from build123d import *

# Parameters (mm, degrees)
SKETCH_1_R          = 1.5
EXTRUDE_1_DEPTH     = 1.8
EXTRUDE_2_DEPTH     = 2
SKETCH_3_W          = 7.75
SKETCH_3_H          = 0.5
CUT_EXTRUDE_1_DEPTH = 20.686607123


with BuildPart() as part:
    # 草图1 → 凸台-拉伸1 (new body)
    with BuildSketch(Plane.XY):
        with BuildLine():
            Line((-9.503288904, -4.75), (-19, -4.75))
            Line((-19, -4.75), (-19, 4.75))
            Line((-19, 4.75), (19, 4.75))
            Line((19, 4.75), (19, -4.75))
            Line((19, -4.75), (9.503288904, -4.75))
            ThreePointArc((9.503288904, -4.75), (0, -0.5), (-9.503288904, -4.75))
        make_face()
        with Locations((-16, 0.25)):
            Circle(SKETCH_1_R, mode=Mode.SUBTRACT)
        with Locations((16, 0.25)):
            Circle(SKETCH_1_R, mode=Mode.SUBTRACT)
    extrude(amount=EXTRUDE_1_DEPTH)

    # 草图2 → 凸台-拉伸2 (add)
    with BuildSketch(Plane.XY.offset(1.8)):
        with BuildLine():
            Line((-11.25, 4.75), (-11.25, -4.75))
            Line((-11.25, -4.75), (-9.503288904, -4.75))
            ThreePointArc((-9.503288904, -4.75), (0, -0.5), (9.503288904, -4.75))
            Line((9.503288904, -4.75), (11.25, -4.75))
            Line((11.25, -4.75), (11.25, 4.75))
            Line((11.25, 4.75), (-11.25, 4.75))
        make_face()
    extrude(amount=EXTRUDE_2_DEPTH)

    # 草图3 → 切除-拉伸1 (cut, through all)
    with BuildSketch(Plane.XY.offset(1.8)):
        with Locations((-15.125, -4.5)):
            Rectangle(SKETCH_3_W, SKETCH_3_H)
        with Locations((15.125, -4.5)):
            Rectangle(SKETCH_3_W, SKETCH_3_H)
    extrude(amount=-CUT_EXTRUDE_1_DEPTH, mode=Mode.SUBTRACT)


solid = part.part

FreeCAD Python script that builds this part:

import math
import FreeCAD as App
import Part
import Sketcher
Q = App.Units.Quantity

doc = App.newDocument("Part")
body = doc.addObject("PartDesign::Body", "Body")

sketch1 = body.newObject("Sketcher::SketchObject", "Sketch")
sketch1.AttachmentSupport = (doc.getObject("XY_Plane"), [""])
sketch1.MapMode = "FlatFace"
sketch1.addGeometry([
    Part.LineSegment(App.Vector(-19, -4.8, 0), App.Vector(-9.5, -4.8, 0)),
    Part.ArcOfCircle(Part.Circle(App.Vector(0, -13.2, 0), App.Vector(0, 0, 1), 12.7), math.radians(42), math.radians(138)),
    Part.LineSegment(App.Vector(9.5, -4.8, 0), App.Vector(19, -4.8, 0)),
    Part.LineSegment(App.Vector(19, -4.8, 0), App.Vector(19, 4.8, 0)),
    Part.LineSegment(App.Vector(19, 4.8, 0), App.Vector(-19, 4.8, 0)),
    Part.LineSegment(App.Vector(-19, 4.8, 0), App.Vector(-19, -4.8, 0)),
    Part.Circle(App.Vector(16, 0.2, 0), App.Vector(0, 0, 1), 1.5),
    Part.Circle(App.Vector(-16, 0.2, 0), App.Vector(0, 0, 1), 1.5),
], False)
sketch1.addConstraint([
    Sketcher.Constraint("Coincident", 0, 2, 1, 2),
    Sketcher.Constraint("Coincident", 1, 1, 2, 1),
    Sketcher.Constraint("Coincident", 2, 2, 3, 1),
    Sketcher.Constraint("Coincident", 3, 2, 4, 1),
    Sketcher.Constraint("Coincident", 4, 2, 5, 1),
    Sketcher.Constraint("Coincident", 5, 2, 0, 1),
    Sketcher.Constraint("Horizontal", 0),
    Sketcher.Constraint("Horizontal", 2),
    Sketcher.Constraint("Vertical", 3),
    Sketcher.Constraint("Horizontal", 4),
    Sketcher.Constraint("Vertical", 5),
    Sketcher.Constraint("Equal", 6, 7),
    Sketcher.Constraint("Symmetric", 2, 2, 4, 2, -1, 1),
    Sketcher.Constraint("Symmetric", 6, 3, 7, 3, -2),
    Sketcher.Constraint("Symmetric", 0, 2, 1, 1, -2),
    Sketcher.Constraint("Diameter", 6, Q("3 mm")),
    Sketcher.Constraint("DistanceX", 4, 2, 4, 1, Q("38 mm")),
    Sketcher.Constraint("Radius", 1, Q("12.75 mm")),
    Sketcher.Constraint("DistanceY", 3, 1, 3, 2, Q("9.5 mm")),
    Sketcher.Constraint("DistanceX", -1, 1, 6, 3, Q("16 mm")),
    Sketcher.Constraint("DistanceY", 0, 2, 7, 3, Q("5 mm")),
    Sketcher.Constraint("DistanceY", 1, 3, 3, 2, Q("18 mm")),
])
pad1 = body.newObject("PartDesign::Pad", "Pad")
pad1.Profile = sketch1
pad1.Length = 1.8

sketch2 = body.newObject("Sketcher::SketchObject", "Sketch001")
sketch2.AttachmentSupport = (doc.getObject("XY_Plane"), [""])
sketch2.MapMode = "FlatFace"
sketch2.AttachmentOffset = App.Placement(App.Vector(0, 0, 1.8), App.Rotation())
sketch2.addGeometry([
    Part.LineSegment(App.Vector(-11.2, 4.8, 0), App.Vector(-11.2, -4.8, 0)),
    Part.LineSegment(App.Vector(-11.2, -4.8, 0), App.Vector(-9.5, -4.8, 0)),
    Part.ArcOfCircle(Part.Circle(App.Vector(0, -13.2, 0), App.Vector(0, 0, 1), 12.7), math.radians(42), math.radians(138)),
    Part.LineSegment(App.Vector(9.5, -4.8, 0), App.Vector(11.2, -4.8, 0)),
    Part.LineSegment(App.Vector(11.2, -4.8, 0), App.Vector(11.2, 4.8, 0)),
    Part.LineSegment(App.Vector(11.2, 4.8, 0), App.Vector(-11.2, 4.8, 0)),
], False)
sketch2.addConstraint([
    Sketcher.Constraint("Coincident", 0, 2, 1, 1),
    Sketcher.Constraint("Coincident", 1, 2, 2, 2),
    Sketcher.Constraint("Coincident", 2, 1, 3, 1),
    Sketcher.Constraint("Coincident", 3, 2, 4, 1),
    Sketcher.Constraint("Coincident", 4, 2, 5, 1),
    Sketcher.Constraint("Coincident", 5, 2, 0, 1),
    Sketcher.Constraint("Vertical", 0),
    Sketcher.Constraint("Horizontal", 1),
    Sketcher.Constraint("Horizontal", 3),
    Sketcher.Constraint("Vertical", 4),
    Sketcher.Constraint("Horizontal", 5),
    Sketcher.Constraint("Symmetric", 0, 2, 4, 2, -1, 1),
    Sketcher.Constraint("Symmetric", 1, 2, 2, 1, -2),
    Sketcher.Constraint("Radius", 2, Q("12.75 mm")),
    Sketcher.Constraint("DistanceX", 5, 2, 5, 1, Q("22.5 mm")),
    Sketcher.Constraint("DistanceY", 0, 2, 0, 1, Q("9.5 mm")),
    Sketcher.Constraint("DistanceY", 2, 3, 4, 2, Q("18 mm")),
])
pad2 = body.newObject("PartDesign::Pad", "Pad001")
pad2.Profile = sketch2
pad2.Length = 2

sketch3 = body.newObject("Sketcher::SketchObject", "Sketch002")
sketch3.AttachmentSupport = (doc.getObject("XY_Plane"), [""])
sketch3.MapMode = "FlatFace"
sketch3.AttachmentOffset = App.Placement(App.Vector(0, 0, 1.8), App.Rotation())
sketch3.addGeometry([
    Part.LineSegment(App.Vector(-19, -4.2, 0), App.Vector(-19, -4.8, 0)),
    Part.LineSegment(App.Vector(-19, -4.8, 0), App.Vector(-11.2, -4.8, 0)),
    Part.LineSegment(App.Vector(-11.2, -4.8, 0), App.Vector(-11.2, -4.2, 0)),
    Part.LineSegment(App.Vector(-11.2, -4.2, 0), App.Vector(-19, -4.2, 0)),
    Part.LineSegment(App.Vector(11.2, -4.2, 0), App.Vector(11.2, -4.8, 0)),
    Part.LineSegment(App.Vector(11.2, -4.8, 0), App.Vector(19, -4.8, 0)),
    Part.LineSegment(App.Vector(19, -4.8, 0), App.Vector(19, -4.2, 0)),
    Part.LineSegment(App.Vector(19, -4.2, 0), App.Vector(11.2, -4.2, 0)),
], False)
sketch3.addConstraint([
    Sketcher.Constraint("Coincident", 0, 2, 1, 1),
    Sketcher.Constraint("Coincident", 1, 2, 2, 1),
    Sketcher.Constraint("Coincident", 2, 2, 3, 1),
    Sketcher.Constraint("Coincident", 3, 2, 0, 1),
    Sketcher.Constraint("Coincident", 4, 2, 5, 1),
    Sketcher.Constraint("Coincident", 5, 2, 6, 1),
    Sketcher.Constraint("Coincident", 6, 2, 7, 1),
    Sketcher.Constraint("Coincident", 7, 2, 4, 1),
    Sketcher.Constraint("Vertical", 0),
    Sketcher.Constraint("Horizontal", 1),
    Sketcher.Constraint("Vertical", 2),
    Sketcher.Constraint("Horizontal", 3),
    Sketcher.Constraint("Vertical", 4),
    Sketcher.Constraint("Horizontal", 5),
    Sketcher.Constraint("Vertical", 6),
    Sketcher.Constraint("Horizontal", 7),
    Sketcher.Constraint("Symmetric", 1, 2, 4, 2, -2),
    Sketcher.Constraint("Symmetric", 3, 2, 6, 2, -2),
    Sketcher.Constraint("DistanceY", 0, 2, 0, 1, Q("0.5 mm")),
    Sketcher.Constraint("DistanceX", 0, 2, -1, 1, Q("19 mm")),
    Sketcher.Constraint("DistanceX", 1, 1, 1, 2, Q("7.75 mm")),
    Sketcher.Constraint("DistanceY", 0, 2, -1, 1, Q("4.75 mm")),
])
pocket1 = body.newObject("PartDesign::Pocket", "Pocket")
pocket1.Profile = sketch3
pocket1.Type = "ThroughAll"

doc.recompute()
